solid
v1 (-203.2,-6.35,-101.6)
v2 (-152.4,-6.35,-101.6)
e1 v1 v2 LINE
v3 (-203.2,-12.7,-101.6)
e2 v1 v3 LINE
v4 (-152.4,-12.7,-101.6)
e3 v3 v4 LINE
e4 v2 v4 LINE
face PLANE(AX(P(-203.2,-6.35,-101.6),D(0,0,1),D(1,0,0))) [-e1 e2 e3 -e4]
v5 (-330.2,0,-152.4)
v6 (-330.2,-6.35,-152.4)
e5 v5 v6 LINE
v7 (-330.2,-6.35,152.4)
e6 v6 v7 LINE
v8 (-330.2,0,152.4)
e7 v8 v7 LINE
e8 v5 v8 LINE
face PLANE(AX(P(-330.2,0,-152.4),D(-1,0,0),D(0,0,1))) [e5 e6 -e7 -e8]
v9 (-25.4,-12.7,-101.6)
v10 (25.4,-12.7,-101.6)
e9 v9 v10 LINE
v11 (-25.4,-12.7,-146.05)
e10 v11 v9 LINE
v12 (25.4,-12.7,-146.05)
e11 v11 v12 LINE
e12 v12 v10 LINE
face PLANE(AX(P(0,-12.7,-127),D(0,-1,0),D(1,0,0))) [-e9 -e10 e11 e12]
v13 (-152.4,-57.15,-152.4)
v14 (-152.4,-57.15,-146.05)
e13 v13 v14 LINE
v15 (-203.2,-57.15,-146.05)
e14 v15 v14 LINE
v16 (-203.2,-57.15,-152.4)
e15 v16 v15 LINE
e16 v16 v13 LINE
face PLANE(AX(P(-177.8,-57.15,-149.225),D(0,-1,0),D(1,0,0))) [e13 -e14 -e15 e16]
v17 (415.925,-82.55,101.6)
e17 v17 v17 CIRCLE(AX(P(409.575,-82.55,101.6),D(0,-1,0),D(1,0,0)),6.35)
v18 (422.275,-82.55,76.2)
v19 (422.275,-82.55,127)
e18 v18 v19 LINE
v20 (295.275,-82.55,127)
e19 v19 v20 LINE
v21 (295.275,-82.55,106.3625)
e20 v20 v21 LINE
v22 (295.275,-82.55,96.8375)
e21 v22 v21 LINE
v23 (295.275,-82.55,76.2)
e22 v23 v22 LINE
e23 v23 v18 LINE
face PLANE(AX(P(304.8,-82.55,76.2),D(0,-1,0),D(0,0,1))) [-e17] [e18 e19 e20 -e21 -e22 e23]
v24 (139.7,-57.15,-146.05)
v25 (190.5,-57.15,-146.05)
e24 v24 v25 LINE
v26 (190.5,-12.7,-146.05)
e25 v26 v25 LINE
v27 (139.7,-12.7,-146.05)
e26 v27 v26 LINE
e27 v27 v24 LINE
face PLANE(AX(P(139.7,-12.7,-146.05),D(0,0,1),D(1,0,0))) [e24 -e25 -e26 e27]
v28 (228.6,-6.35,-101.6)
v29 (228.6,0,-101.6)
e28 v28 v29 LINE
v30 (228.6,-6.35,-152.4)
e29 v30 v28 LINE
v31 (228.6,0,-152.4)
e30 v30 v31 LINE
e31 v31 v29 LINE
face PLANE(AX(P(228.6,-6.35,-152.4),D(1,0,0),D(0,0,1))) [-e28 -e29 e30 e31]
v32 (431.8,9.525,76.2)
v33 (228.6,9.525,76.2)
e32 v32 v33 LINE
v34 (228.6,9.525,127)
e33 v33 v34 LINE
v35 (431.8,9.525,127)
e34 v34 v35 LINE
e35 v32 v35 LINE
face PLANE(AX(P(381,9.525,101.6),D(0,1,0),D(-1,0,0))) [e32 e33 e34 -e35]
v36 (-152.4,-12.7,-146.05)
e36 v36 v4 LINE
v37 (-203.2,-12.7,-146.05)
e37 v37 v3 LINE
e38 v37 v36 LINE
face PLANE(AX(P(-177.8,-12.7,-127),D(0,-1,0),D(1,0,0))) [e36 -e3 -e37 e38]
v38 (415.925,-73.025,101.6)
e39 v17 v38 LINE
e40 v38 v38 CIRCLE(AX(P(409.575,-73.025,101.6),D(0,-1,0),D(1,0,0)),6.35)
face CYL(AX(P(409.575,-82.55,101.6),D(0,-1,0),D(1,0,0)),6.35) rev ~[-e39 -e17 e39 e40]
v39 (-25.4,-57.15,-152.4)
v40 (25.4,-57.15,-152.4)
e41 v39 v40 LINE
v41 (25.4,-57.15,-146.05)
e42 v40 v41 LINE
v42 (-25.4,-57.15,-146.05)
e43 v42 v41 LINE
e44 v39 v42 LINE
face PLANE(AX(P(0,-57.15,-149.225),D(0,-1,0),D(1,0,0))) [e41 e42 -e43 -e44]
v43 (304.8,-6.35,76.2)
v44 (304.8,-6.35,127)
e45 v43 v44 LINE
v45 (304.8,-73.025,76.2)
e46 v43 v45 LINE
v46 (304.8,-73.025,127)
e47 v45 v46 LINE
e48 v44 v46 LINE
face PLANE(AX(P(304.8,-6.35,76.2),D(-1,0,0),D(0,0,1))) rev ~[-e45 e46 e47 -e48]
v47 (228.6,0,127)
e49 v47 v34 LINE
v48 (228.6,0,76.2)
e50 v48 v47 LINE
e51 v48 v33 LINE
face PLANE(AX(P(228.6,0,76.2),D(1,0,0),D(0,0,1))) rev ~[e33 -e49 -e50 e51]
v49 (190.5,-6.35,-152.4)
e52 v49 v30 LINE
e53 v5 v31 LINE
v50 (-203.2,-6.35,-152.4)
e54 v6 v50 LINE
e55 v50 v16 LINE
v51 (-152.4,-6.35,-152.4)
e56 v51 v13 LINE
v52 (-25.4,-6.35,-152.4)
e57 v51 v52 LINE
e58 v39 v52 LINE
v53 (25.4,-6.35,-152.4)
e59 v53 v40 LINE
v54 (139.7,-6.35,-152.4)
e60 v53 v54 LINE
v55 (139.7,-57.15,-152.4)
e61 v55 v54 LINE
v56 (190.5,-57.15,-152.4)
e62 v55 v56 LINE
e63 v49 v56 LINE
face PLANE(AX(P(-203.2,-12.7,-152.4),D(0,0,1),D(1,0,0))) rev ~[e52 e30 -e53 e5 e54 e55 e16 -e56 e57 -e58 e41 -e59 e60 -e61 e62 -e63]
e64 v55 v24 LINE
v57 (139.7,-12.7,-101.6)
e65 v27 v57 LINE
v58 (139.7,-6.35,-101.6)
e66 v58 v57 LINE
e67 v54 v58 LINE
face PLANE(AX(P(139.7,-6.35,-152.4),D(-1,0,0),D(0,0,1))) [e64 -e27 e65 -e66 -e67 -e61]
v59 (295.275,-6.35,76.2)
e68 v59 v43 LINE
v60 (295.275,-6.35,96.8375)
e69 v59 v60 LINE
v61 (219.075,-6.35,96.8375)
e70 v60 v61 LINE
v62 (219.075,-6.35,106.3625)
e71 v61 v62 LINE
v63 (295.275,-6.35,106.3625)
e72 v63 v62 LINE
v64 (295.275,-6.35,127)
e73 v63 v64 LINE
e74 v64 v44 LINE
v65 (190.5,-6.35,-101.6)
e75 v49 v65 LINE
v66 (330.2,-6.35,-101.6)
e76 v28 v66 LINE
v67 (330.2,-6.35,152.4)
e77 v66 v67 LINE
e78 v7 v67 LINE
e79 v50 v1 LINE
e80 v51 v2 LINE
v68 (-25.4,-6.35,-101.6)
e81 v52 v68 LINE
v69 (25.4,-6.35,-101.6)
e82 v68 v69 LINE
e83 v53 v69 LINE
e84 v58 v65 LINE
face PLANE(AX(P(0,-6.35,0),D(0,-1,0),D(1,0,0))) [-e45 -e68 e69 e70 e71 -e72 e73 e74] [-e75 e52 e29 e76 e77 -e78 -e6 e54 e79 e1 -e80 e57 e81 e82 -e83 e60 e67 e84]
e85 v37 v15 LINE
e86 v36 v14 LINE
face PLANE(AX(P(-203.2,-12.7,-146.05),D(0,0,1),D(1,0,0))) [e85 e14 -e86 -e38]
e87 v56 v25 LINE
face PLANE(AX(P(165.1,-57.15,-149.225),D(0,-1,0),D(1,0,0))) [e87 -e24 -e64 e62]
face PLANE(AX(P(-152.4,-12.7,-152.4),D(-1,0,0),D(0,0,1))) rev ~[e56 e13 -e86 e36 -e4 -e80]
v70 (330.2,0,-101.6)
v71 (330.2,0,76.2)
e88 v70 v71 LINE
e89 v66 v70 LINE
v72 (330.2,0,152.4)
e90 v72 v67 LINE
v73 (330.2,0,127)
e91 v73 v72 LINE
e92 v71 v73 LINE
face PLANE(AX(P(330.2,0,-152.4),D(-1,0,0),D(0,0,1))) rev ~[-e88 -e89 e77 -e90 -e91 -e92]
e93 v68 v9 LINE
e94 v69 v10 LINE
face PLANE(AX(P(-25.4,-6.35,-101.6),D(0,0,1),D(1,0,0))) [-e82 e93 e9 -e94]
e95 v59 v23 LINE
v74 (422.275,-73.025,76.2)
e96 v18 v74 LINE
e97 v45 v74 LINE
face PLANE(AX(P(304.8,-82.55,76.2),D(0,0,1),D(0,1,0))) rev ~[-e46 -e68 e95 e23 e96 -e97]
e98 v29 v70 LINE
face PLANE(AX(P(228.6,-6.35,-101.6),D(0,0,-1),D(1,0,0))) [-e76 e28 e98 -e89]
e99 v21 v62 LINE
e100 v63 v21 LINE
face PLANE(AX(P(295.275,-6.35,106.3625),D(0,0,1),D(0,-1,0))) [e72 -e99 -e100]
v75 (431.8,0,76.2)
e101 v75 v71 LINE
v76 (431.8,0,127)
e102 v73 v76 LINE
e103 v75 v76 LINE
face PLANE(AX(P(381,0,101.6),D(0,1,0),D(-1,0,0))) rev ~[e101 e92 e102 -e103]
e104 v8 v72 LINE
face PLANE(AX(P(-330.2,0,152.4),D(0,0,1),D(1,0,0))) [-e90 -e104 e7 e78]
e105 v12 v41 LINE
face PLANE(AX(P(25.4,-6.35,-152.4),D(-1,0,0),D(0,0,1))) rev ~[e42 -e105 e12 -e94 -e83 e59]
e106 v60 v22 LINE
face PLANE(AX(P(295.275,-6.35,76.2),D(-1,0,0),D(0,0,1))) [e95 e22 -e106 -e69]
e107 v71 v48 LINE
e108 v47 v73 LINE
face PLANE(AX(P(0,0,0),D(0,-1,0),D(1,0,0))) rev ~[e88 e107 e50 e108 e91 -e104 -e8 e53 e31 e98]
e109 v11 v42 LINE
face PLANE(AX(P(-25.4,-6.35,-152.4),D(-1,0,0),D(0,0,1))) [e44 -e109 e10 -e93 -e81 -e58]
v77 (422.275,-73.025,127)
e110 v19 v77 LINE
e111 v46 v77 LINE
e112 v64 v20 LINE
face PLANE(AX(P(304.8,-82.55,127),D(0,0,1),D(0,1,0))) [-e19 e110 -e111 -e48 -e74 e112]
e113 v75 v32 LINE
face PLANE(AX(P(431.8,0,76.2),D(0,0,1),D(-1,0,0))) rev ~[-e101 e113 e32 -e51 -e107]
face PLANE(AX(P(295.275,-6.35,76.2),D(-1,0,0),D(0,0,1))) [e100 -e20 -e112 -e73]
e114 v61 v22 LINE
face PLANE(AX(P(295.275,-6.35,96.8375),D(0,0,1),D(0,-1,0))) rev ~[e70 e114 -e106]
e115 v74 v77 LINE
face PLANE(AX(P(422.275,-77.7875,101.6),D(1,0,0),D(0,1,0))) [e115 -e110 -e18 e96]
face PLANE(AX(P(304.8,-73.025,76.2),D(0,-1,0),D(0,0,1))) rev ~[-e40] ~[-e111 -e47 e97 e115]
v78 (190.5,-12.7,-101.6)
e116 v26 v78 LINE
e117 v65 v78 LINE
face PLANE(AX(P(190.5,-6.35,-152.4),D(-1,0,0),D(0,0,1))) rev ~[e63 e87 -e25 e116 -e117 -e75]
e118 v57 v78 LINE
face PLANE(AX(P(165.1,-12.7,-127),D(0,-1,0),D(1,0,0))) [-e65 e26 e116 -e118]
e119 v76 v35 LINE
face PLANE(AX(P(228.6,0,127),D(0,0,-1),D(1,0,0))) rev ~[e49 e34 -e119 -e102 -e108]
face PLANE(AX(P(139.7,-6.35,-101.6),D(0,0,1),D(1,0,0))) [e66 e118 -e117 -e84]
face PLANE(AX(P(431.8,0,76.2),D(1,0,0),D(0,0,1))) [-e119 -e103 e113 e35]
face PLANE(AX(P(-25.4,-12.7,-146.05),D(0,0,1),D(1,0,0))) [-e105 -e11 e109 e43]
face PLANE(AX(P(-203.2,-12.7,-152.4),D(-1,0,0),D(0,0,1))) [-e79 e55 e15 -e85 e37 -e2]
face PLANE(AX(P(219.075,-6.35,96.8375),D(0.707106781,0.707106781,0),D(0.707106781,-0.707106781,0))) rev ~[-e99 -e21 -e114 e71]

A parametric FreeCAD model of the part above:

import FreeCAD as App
import Part
import Sketcher
from FreeCAD import Vector
Q = App.Units.Quantity


def add_polygon(sketch, points):
    """Adds a closed chain of lines whose ends are joined by coincident constraints."""
    first, n = sketch.GeometryCount, len(points)
    for a, b in zip(points, points[1:] + points[:1]):
        sketch.addGeometry(Part.LineSegment(App.Vector(*a, 0), App.Vector(*b, 0)), False)
    for i in range(n):
        sketch.addConstraint(Sketcher.Constraint("Coincident", first + i, 2, first + (i + 1) % n, 1))

doc = App.newDocument("Part")
body = doc.addObject("PartDesign::Body", "Body")

# Sketch on XZ plane
sketch1 = body.newObject("Sketcher::SketchObject", "Sketch")
sketch1.AttachmentSupport = (doc.getObject("XZ_Plane"), [""])
sketch1.MapMode = "FlatFace"
add_polygon(sketch1, [(-330, 152), (-330, -152), (330, -152), (330, 152)])  # lines 0-3
sketch1.addConstraint([
    Sketcher.Constraint("Vertical", 0),
    Sketcher.Constraint("Horizontal", 1),
    Sketcher.Constraint("Vertical", 2),
    Sketcher.Constraint("Horizontal", 3),
    Sketcher.Constraint("Symmetric", 0, 2, 2, 2, -1, 1),
    Sketcher.Constraint("DistanceX", 1, 1, 1, 2, Q("26 in")),
    Sketcher.Constraint("DistanceY", 0, 2, 0, 1, Q("12 in")),
])
pad1 = body.newObject("PartDesign::Pad", "Pad")
pad1.Profile = sketch1
pad1.Length = Q("0.25 in")

# Sketch on XZ plane
sketch2 = body.newObject("Sketcher::SketchObject", "Sketch001")
sketch2.AttachmentSupport = (doc.getObject("XZ_Plane"), [""])
sketch2.MapMode = "FlatFace"
sketch2.AttachmentOffset = App.Placement(Vector(0, 0, 0.25 * 25.4), App.Rotation())
add_polygon(sketch2, [(140, -102), (140, -152), (190, -152), (190, -102)])  # lines 0-3
add_polygon(sketch2, [(-25, -102), (-25, -152), (25, -152), (25, -102)])  # lines 4-7
add_polygon(sketch2, [(-203, -102), (-203, -152), (-152, -152), (-152, -102)])  # lines 8-11
sketch2.addConstraint([
    Sketcher.Constraint("Vertical", 0),
    Sketcher.Constraint("Horizontal", 1),
    Sketcher.Constraint("Vertical", 2),
    Sketcher.Constraint("Horizontal", 3),
    Sketcher.Constraint("Vertical", 4),
    Sketcher.Constraint("Horizontal", 5),
    Sketcher.Constraint("Vertical", 6),
    Sketcher.Constraint("Horizontal", 7),
    Sketcher.Constraint("Vertical", 8),
    Sketcher.Constraint("Horizontal", 9),
    Sketcher.Constraint("Vertical", 10),
    Sketcher.Constraint("Horizontal", 11),
    Sketcher.Constraint("Horizontal", 1, 2, 4, 2),
    Sketcher.Constraint("Horizontal", 3, 2, 6, 2),
    Sketcher.Constraint("Horizontal", 5, 2, 8, 2),
    Sketcher.Constraint("Horizontal", 7, 2, 10, 2),
    Sketcher.Constraint("Equal", 3, 5),
    Sketcher.Constraint("Equal", 7, 9),
    Sketcher.Constraint("Equal", 11, 0),
    Sketcher.Constraint("DistanceX", 1, 1, 1, 2, Q("2 in")),
    Sketcher.Constraint("DistanceY", 0, 2, -1, 1, Q("6 in")),
    Sketcher.Constraint("DistanceX", 4, 2, -1, 1, Q("1 in")),
    Sketcher.Constraint("DistanceX", 8, 2, -1, 1, Q("8 in")),
    Sketcher.Constraint("DistanceX", -1, 1, 0, 2, Q("5.5 in")),
])
pad2 = body.newObject("PartDesign::Pad", "Pad001")
pad2.Profile = sketch2
pad2.Length = Q("0.25 in")

# Sketch on XZ plane
sketch3 = body.newObject("Sketcher::SketchObject", "Sketch002")
sketch3.AttachmentSupport = (doc.getObject("XZ_Plane"), [""])
sketch3.MapMode = "FlatFace"
sketch3.AttachmentOffset = App.Placement(Vector(0, 0, 0.5 * 25.4), App.Rotation())
add_polygon(sketch3, [(-203, -146), (-203, -152), (-152, -152), (-152, -146)])  # lines 0-3
add_polygon(sketch3, [(-25, -146), (-25, -152), (25, -152), (25, -146)])  # lines 4-7
add_polygon(sketch3, [(140, -146), (140, -152), (190, -152), (190, -146)])  # lines 8-11
sketch3.addConstraint([
    Sketcher.Constraint("Vertical", 0),
    Sketcher.Constraint("Horizontal", 1),
    Sketcher.Constraint("Vertical", 2),
    Sketcher.Constraint("Horizontal", 3),
    Sketcher.Constraint("Vertical", 4),
    Sketcher.Constraint("Horizontal", 5),
    Sketcher.Constraint("Vertical", 6),
    Sketcher.Constraint("Horizontal", 7),
    Sketcher.Constraint("Vertical", 8),
    Sketcher.Constraint("Horizontal", 9),
    Sketcher.Constraint("Vertical", 10),
    Sketcher.Constraint("Horizontal", 11),
    Sketcher.Constraint("Horizontal", 1, 2, 4, 2),
    Sketcher.Constraint("Horizontal", 3, 2, 6, 2),
    Sketcher.Constraint("Horizontal", 5, 2, 8, 2),
    Sketcher.Constraint("Horizontal", 7, 2, 10, 2),
    Sketcher.Constraint("Equal", 3, 5),
    Sketcher.Constraint("Equal", 7, 9),
    Sketcher.Constraint("DistanceX", 1, 1, 1, 2, Q("2 in")),
    Sketcher.Constraint("DistanceX", 0, 2, -1, 1, Q("8 in")),
    Sketcher.Constraint("DistanceY", 0, 2, -1, 1, Q("6 in")),
    Sketcher.Constraint("DistanceX", 4, 2, -1, 1, Q("1 in")),
    Sketcher.Constraint("DistanceY", 0, 2, 0, 1, Q("0.25 in")),
    Sketcher.Constraint("DistanceX", -1, 1, 8, 2, Q("5.5 in")),
])
pad3 = body.newObject("PartDesign::Pad", "Pad002")
pad3.Profile = sketch3
pad3.Length = Q("1.75 in")

# Sketch on XZ plane
sketch4 = body.newObject("Sketcher::SketchObject", "Sketch003")
sketch4.AttachmentSupport = (doc.getObject("XZ_Plane"), [""])
sketch4.MapMode = "FlatFace"
add_polygon(sketch4, [(432, 127), (432, 76), (229, 76), (229, 127)])  # lines 0-3
sketch4.addConstraint([
    Sketcher.Constraint("Vertical", 0),
    Sketcher.Constraint("Horizontal", 1),
    Sketcher.Constraint("Vertical", 2),
    Sketcher.Constraint("Horizontal", 3),
    Sketcher.Constraint("DistanceX", 1, 2, 1, 1, Q("8 in")),
    Sketcher.Constraint("DistanceY", 0, 2, 0, 1, Q("2 in")),
    Sketcher.Constraint("DistanceX", -1, 1, 0, 2, Q("17 in")),
    Sketcher.Constraint("DistanceY", -1, 1, 0, 2, Q("3 in")),
])
pad4 = body.newObject("PartDesign::Pad", "Pad003")
pad4.Profile = sketch4
pad4.Length = Q("0.375 in")
pad4.Reversed = True

# Sketch on XZ plane
sketch5 = body.newObject("Sketcher::SketchObject", "Sketch004")
sketch5.AttachmentSupport = (doc.getObject("XZ_Plane"), [""])
sketch5.MapMode = "FlatFace"
sketch5.AttachmentOffset = App.Placement(Vector(0, 0, 0.25 * 25.4), App.Rotation())
add_polygon(sketch5, [(229, -102), (229, -152), (330, -152), (330, -102)])  # lines 0-3
sketch5.addConstraint([
    Sketcher.Constraint("Vertical", 0),
    Sketcher.Constraint("Horizontal", 1),
    Sketcher.Constraint("Vertical", 2),
    Sketcher.Constraint("Horizontal", 3),
    Sketcher.Constraint("DistanceX", 1, 1, 1, 2, Q("4 in")),
    Sketcher.Constraint("DistanceY", 0, 2, 0, 1, Q("2 in")),
    Sketcher.Constraint("DistanceX", -1, 1, 0, 2, Q("9 in")),
    Sketcher.Constraint("DistanceY", 0, 2, -1, 1, Q("6 in")),
])
pocket1 = body.newObject("PartDesign::Pocket", "Pocket")
pocket1.Profile = sketch5
pocket1.Length = Q("1 in")

# Sketch on XZ plane
sketch6 = body.newObject("Sketcher::SketchObject", "Sketch005")
sketch6.AttachmentSupport = (doc.getObject("XZ_Plane"), [""])
sketch6.MapMode = "FlatFace"
sketch6.AttachmentOffset = App.Placement(Vector(0, 0, 0.25 * 25.4), App.Rotation())
add_polygon(sketch6, [(295, 127), (295, 76), (305, 76), (305, 127)])  # lines 0-3
sketch6.addConstraint([
    Sketcher.Constraint("Vertical", 0),
    Sketcher.Constraint("Horizontal", 1),
    Sketcher.Constraint("Vertical", 2),
    Sketcher.Constraint("Horizontal", 3),
    Sketcher.Constraint("DistanceY", 0, 2, 0, 1, Q("2 in")),
    Sketcher.Constraint("DistanceY", -1, 1, 0, 2, Q("3 in")),
    Sketcher.Constraint("DistanceX", -1, 1, 1, 2, Q("12 in")),
    Sketcher.Constraint("DistanceX", 1, 1, 1, 2, Q("0.375 in")),
])
pad5 = body.newObject("PartDesign::Pad", "Pad004")
pad5.Profile = sketch6
pad5.Length = Q("3 in")

# Sketch on YZ plane
sketch7 = body.newObject("Sketcher::SketchObject", "Sketch006")
sketch7.AttachmentSupport = (doc.getObject("YZ_Plane"), [""])
sketch7.MapMode = "FlatFace"
sketch7.AttachmentOffset = App.Placement(Vector(0, 0, 12 * 25.4), App.Rotation())
add_polygon(sketch7, [(-83, 127), (-83, 76), (-73, 76), (-73, 127)])  # lines 0-3
sketch7.addConstraint([
    Sketcher.Constraint("Vertical", 0),
    Sketcher.Constraint("Horizontal", 1),
    Sketcher.Constraint("Vertical", 2),
    Sketcher.Constraint("Horizontal", 3),
    Sketcher.Constraint("DistanceY", 0, 2, 0, 1, Q("2 in")),
    Sketcher.Constraint("DistanceY", -1, 1, 0, 2, Q("3 in")),
    Sketcher.Constraint("DistanceX", 1, 1, 1, 2, Q("0.375 in")),
    Sketcher.Constraint("DistanceX", 0, 2, -1, 1, Q("3.25 in")),
])
pad6 = body.newObject("PartDesign::Pad", "Pad005")
pad6.Profile = sketch7
pad6.Length = Q("4.625 in")

# Sketch on XZ plane
sketch8 = body.newObject("Sketcher::SketchObject", "Sketch007")
sketch8.AttachmentSupport = (doc.getObject("XZ_Plane"), [""])
sketch8.MapMode = "FlatFace"
sketch8.AttachmentOffset = App.Placement(Vector(0, 0, 3.25 * 25.4), App.Rotation())
sketch8.addGeometry(Part.Circle(Vector(410, 102, 0), Vector(0, 0, 1), 6), False)
sketch8.addConstraint([
    Sketcher.Constraint("Diameter", 0, Q("0.5 in")),
    Sketcher.Constraint("DistanceY", -1, 1, 0, 3, Q("4 in")),
    Sketcher.Constraint("DistanceX", -1, 1, 0, 3, Q("16.125 in")),
])
pocket2 = body.newObject("PartDesign::Pocket", "Pocket001")
pocket2.Profile = sketch8
pocket2.Length = Q("1 in")

# Sketch on YZ plane
sketch9 = body.newObject("Sketcher::SketchObject", "Sketch008")
sketch9.AttachmentSupport = (doc.getObject("YZ_Plane"), [""])
sketch9.MapMode = "FlatFace"
sketch9.AttachmentOffset = App.Placement(Vector(0, 0, 11.625 * 25.4), App.Rotation())
add_polygon(sketch9, [(-6, 106), (-6, 97), (-83, 97), (-83, 106)])  # lines 0-3
sketch9.addConstraint([
    Sketcher.Constraint("Vertical", 0),
    Sketcher.Constraint("Horizontal", 1),
    Sketcher.Constraint("Vertical", 2),
    Sketcher.Constraint("Horizontal", 3),
    Sketcher.Constraint("DistanceX", 1, 2, 1, 1, Q("3 in")),
    Sketcher.Constraint("DistanceY", 0, 2, 0, 1, Q("0.375 in")),
    Sketcher.Constraint("DistanceX", 0, 2, -1, 1, Q("0.25 in")),
    Sketcher.Constraint("DistanceY", -1, 1, 0, 2, Q("3.8125 in")),
])
pad7 = body.newObject("PartDesign::Pad", "Pad006")
pad7.Profile = sketch9
pad7.Length = Q("3 in")
pad7.Reversed = True

# Sketch on XY plane
sketch10 = body.newObject("Sketcher::SketchObject", "Sketch009")
sketch10.AttachmentSupport = (doc.getObject("XY_Plane"), [""])
sketch10.MapMode = "FlatFace"
sketch10.AttachmentOffset = App.Placement(Vector(0, 0, 3.8125 * 25.4), App.Rotation())
add_polygon(sketch10, [(219, -83), (219, -6), (295, -83)])  # lines 0-2
sketch10.addConstraint([
    Sketcher.Constraint("Vertical", 0),
    Sketcher.Constraint("Horizontal", 2),
    Sketcher.Constraint("Equal", 2, 0),
    Sketcher.Constraint("DistanceX", 2, 2, 2, 1, Q("3 in")),
    Sketcher.Constraint("DistanceY", 0, 2, -1, 1, Q("0.25 in")),
    Sketcher.Constraint("DistanceX", -1, 1, 0, 2, Q("8.625 in")),
])
pocket3 = body.newObject("PartDesign::Pocket", "Pocket002")
pocket3.Profile = sketch10
pocket3.Length = Q("1 in")
pocket3.Reversed = True

doc.recompute()
